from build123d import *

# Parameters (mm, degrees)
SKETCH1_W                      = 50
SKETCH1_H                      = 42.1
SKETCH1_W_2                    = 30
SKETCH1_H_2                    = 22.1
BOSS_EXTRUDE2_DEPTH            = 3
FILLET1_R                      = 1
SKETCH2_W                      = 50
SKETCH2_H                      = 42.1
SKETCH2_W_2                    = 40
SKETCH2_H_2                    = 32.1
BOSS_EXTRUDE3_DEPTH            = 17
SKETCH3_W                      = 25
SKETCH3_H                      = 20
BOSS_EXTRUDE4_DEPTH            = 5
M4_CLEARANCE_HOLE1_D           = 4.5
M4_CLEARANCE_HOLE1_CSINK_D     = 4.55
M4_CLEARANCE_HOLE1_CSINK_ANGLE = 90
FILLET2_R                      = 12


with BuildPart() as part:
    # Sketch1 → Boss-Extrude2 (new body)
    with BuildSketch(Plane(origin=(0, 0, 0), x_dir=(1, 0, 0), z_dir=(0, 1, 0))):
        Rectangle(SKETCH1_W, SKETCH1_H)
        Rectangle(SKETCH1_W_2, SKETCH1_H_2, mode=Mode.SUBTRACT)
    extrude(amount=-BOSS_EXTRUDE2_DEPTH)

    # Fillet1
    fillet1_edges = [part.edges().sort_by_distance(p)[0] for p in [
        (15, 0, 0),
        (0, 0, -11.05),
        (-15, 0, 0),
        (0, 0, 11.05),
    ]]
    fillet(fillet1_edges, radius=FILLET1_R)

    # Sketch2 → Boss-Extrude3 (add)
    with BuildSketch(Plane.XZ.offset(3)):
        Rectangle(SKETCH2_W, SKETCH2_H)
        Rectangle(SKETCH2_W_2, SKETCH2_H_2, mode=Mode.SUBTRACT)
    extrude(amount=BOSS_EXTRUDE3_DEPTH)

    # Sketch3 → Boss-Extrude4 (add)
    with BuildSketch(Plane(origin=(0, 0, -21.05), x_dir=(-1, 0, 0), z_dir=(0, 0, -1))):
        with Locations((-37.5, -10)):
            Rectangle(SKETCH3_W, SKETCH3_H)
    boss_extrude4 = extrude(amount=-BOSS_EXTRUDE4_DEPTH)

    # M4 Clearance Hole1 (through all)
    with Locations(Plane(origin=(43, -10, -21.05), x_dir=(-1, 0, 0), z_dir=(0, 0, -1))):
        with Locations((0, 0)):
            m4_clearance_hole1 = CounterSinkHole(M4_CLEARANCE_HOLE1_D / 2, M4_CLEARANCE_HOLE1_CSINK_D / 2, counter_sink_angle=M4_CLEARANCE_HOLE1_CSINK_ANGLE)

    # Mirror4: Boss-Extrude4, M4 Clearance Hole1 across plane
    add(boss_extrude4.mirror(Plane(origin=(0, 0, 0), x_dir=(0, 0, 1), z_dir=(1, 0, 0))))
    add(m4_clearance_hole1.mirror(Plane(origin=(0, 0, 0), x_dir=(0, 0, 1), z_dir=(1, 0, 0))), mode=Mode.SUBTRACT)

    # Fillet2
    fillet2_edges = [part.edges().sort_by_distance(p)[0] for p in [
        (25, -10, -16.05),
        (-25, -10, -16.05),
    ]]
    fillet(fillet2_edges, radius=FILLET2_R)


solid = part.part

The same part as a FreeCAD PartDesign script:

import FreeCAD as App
import Part
import Sketcher
from FreeCAD import Vector


def edges_at(feature, points):
    """Names of the edges that pass closest to the given points."""
    edges = feature.Shape.Edges
    near = lambda p: min(range(len(edges)), key=lambda i: edges[i].distToShape(Part.Vertex(*p))[0])
    return sorted({f"Edge{near(p) + 1}" for p in points})

doc = App.newDocument("Part")
body = doc.addObject("PartDesign::Body", "Body")

# Sketch on XZ plane
sketch1 = doc.addObject("Sketcher::SketchObject", "Sketch")
body.addObject(sketch1)
sketch1.AttachmentSupport = (doc.XZ_Plane, [""])
sketch1.MapMode = "FlatFace"
sketch1.addGeometry(Part.LineSegment(Vector(-25, -21.05, 0), Vector(-25, 21.05, 0)), False)
sketch1.addGeometry(Part.LineSegment(Vector(-25, 21.05, 0), Vector(25, 21.05, 0)), False)
sketch1.addGeometry(Part.LineSegment(Vector(25, 21.05, 0), Vector(25, -21.05, 0)), False)
sketch1.addGeometry(Part.LineSegment(Vector(25, -21.05, 0), Vector(-25, -21.05, 0)), False)
sketch1.addGeometry(Part.LineSegment(Vector(15, 11.05, 0), Vector(-15, 11.05, 0)), False)
sketch1.addGeometry(Part.LineSegment(Vector(-15, 11.05, 0), Vector(-15, -11.05, 0)), False)
sketch1.addGeometry(Part.LineSegment(Vector(-15, -11.05, 0), Vector(15, -11.05, 0)), False)
sketch1.addGeometry(Part.LineSegment(Vector(15, -11.05, 0), Vector(15, 11.05, 0)), False)
sketch1.addConstraint(Sketcher.Constraint("Coincident", 0, 2, 1, 1))
sketch1.addConstraint(Sketcher.Constraint("Coincident", 1, 2, 2, 1))
sketch1.addConstraint(Sketcher.Constraint("Coincident", 2, 2, 3, 1))
sketch1.addConstraint(Sketcher.Constraint("Coincident", 3, 2, 0, 1))
sketch1.addConstraint(Sketcher.Constraint("Coincident", 4, 2, 5, 1))
sketch1.addConstraint(Sketcher.Constraint("Coincident", 5, 2, 6, 1))
sketch1.addConstraint(Sketcher.Constraint("Coincident", 6, 2, 7, 1))
sketch1.addConstraint(Sketcher.Constraint("Coincident", 7, 2, 4, 1))
sketch1.addConstraint(Sketcher.Constraint("Vertical", 0))
sketch1.addConstraint(Sketcher.Constraint("Horizontal", 1))
sketch1.addConstraint(Sketcher.Constraint("Vertical", 2))
sketch1.addConstraint(Sketcher.Constraint("Horizontal", 3))
sketch1.addConstraint(Sketcher.Constraint("Horizontal", 4))
sketch1.addConstraint(Sketcher.Constraint("Vertical", 5))
sketch1.addConstraint(Sketcher.Constraint("Horizontal", 6))
sketch1.addConstraint(Sketcher.Constraint("Vertical", 7))
sketch1.addConstraint(Sketcher.Constraint("Symmetric", 0, 2, 2, 2, -1, 1))
sketch1.addConstraint(Sketcher.Constraint("Symmetric", 4, 2, 6, 2, -1, 1))
sketch1.addConstraint(Sketcher.Constraint("DistanceX", 1, 1, 1, 2, 50.0))
sketch1.addConstraint(Sketcher.Constraint("DistanceX", 4, 2, 4, 1, 30.0))
sketch1.addConstraint(Sketcher.Constraint("DistanceY", 0, 1, 0, 2, 42.1))
sketch1.addConstraint(Sketcher.Constraint("DistanceY", 5, 2, 5, 1, 22.1))
pad1 = doc.addObject("PartDesign::Pad", "Pad")
body.addObject(pad1)
pad1.Profile = sketch1
pad1.Length = 3
doc.recompute()

fillet = doc.addObject("PartDesign::Fillet", "Fillet")
body.addObject(fillet)
fillet.Base = (pad1, edges_at(pad1, [
    (15, 0, 0),
    (0, 0, -11.05),
    (-15, 0, 0),
    (0, 0, 11.05),
]))
fillet.Radius = 1

# Sketch on XZ plane
sketch2 = doc.addObject("Sketcher::SketchObject", "Sketch001")
body.addObject(sketch2)
sketch2.AttachmentSupport = (doc.XZ_Plane, [""])
sketch2.MapMode = "FlatFace"
sketch2.AttachmentOffset = App.Placement(Vector(0, 0, 3), App.Rotation())
sketch2.addGeometry(Part.LineSegment(Vector(-25, 21.05, 0), Vector(-25, -21.05, 0)), False)
sketch2.addGeometry(Part.LineSegment(Vector(-25, -21.05, 0), Vector(25, -21.05, 0)), False)
sketch2.addGeometry(Part.LineSegment(Vector(25, -21.05, 0), Vector(25, 21.05, 0)), False)
sketch2.addGeometry(Part.LineSegment(Vector(25, 21.05, 0), Vector(-25, 21.05, 0)), False)
sketch2.addGeometry(Part.LineSegment(Vector(20, -16.05, 0), Vector(-20, -16.05, 0)), False)
sketch2.addGeometry(Part.LineSegment(Vector(-20, -16.05, 0), Vector(-20, 16.05, 0)), False)
sketch2.addGeometry(Part.LineSegment(Vector(-20, 16.05, 0), Vector(20, 16.05, 0)), False)
sketch2.addGeometry(Part.LineSegment(Vector(20, 16.05, 0), Vector(20, -16.05, 0)), False)
sketch2.addConstraint(Sketcher.Constraint("Coincident", 0, 2, 1, 1))
sketch2.addConstraint(Sketcher.Constraint("Coincident", 1, 2, 2, 1))
sketch2.addConstraint(Sketcher.Constraint("Coincident", 2, 2, 3, 1))
sketch2.addConstraint(Sketcher.Constraint("Coincident", 3, 2, 0, 1))
sketch2.addConstraint(Sketcher.Constraint("Coincident", 4, 2, 5, 1))
sketch2.addConstraint(Sketcher.Constraint("Coincident", 5, 2, 6, 1))
sketch2.addConstraint(Sketcher.Constraint("Coincident", 6, 2, 7, 1))
sketch2.addConstraint(Sketcher.Constraint("Coincident", 7, 2, 4, 1))
sketch2.addConstraint(Sketcher.Constraint("Vertical", 0))
sketch2.addConstraint(Sketcher.Constraint("Horizontal", 1))
sketch2.addConstraint(Sketcher.Constraint("Vertical", 2))
sketch2.addConstraint(Sketcher.Constraint("Horizontal", 3))
sketch2.addConstraint(Sketcher.Constraint("Horizontal", 4))
sketch2.addConstraint(Sketcher.Constraint("Vertical", 5))
sketch2.addConstraint(Sketcher.Constraint("Horizontal", 6))
sketch2.addConstraint(Sketcher.Constraint("Vertical", 7))
sketch2.addConstraint(Sketcher.Constraint("Symmetric", 0, 2, 2, 2, -1, 1))
sketch2.addConstraint(Sketcher.Constraint("Symmetric", 4, 2, 6, 2, -1, 1))
sketch2.addConstraint(Sketcher.Constraint("DistanceX", 1, 1, 1, 2, 50.0))
sketch2.addConstraint(Sketcher.Constraint("DistanceX", 4, 2, 4, 1, 40.0))
sketch2.addConstraint(Sketcher.Constraint("DistanceY", 0, 2, 0, 1, 42.1))
sketch2.addConstraint(Sketcher.Constraint("DistanceY", 5, 1, 5, 2, 32.1))
pad2 = doc.addObject("PartDesign::Pad", "Pad001")
body.addObject(pad2)
pad2.Profile = sketch2
pad2.Length = 17

# Sketch on XY plane
sketch3 = doc.addObject("Sketcher::SketchObject", "Sketch002")
body.addObject(sketch3)
sketch3.AttachmentSupport = (doc.XY_Plane, [""])
sketch3.MapMode = "FlatFace"
sketch3.AttachmentOffset = App.Placement(Vector(0, 0, -21.05), App.Rotation())
sketch3.addGeometry(Part.LineSegment(Vector(50, 0, 0), Vector(50, -20, 0)), False)
sketch3.addGeometry(Part.LineSegment(Vector(50, -20, 0), Vector(25, -20, 0)), False)
sketch3.addGeometry(Part.LineSegment(Vector(25, -20, 0), Vector(25, 0, 0)), False)
sketch3.addGeometry(Part.LineSegment(Vector(25, 0, 0), Vector(50, 0, 0)), False)
sketch3.addConstraint(Sketcher.Constraint("Coincident", 0, 2, 1, 1))
sketch3.addConstraint(Sketcher.Constraint("Coincident", 1, 2, 2, 1))
sketch3.addConstraint(Sketcher.Constraint("Coincident", 2, 2, 3, 1))
sketch3.addConstraint(Sketcher.Constraint("Coincident", 3, 2, 0, 1))
sketch3.addConstraint(Sketcher.Constraint("Vertical", 0))
sketch3.addConstraint(Sketcher.Constraint("Horizontal", 1))
sketch3.addConstraint(Sketcher.Constraint("Vertical", 2))
sketch3.addConstraint(Sketcher.Constraint("Horizontal", 3))
sketch3.addConstraint(Sketcher.Constraint("PointOnObject", 2, 2, -1))
sketch3.addConstraint(Sketcher.Constraint("DistanceX", 1, 2, 1, 1, 25.0))
sketch3.addConstraint(Sketcher.Constraint("DistanceY", 0, 2, 0, 1, 20.0))
sketch3.addConstraint(Sketcher.Constraint("DistanceX", -1, 1, 0, 2, 50.0))
pad3 = doc.addObject("PartDesign::Pad", "Pad002")
body.addObject(pad3)
pad3.Profile = sketch3
pad3.Length = 5

# Sketch on XY plane
sketch4 = doc.addObject("Sketcher::SketchObject", "Sketch003")
body.addObject(sketch4)
sketch4.AttachmentSupport = (doc.XY_Plane, [""])
sketch4.MapMode = "FlatFace"
sketch4.AttachmentOffset = App.Placement(Vector(0, 0, -21.05), App.Rotation())
sketch4.addGeometry(Part.Circle(Vector(43, -10, 0), Vector(0, 0, 1), 2.25), False)
sketch4.addConstraint(Sketcher.Constraint("Diameter", 0, 4.5))
sketch4.addConstraint(Sketcher.Constraint("DistanceX", -1, 1, 0, 3, 43.0))
sketch4.addConstraint(Sketcher.Constraint("DistanceY", 0, 3, -1, 1, 10.0))
doc.recompute()
hole = doc.addObject("PartDesign::Hole", "Hole")
body.addObject(hole)
hole.Profile = sketch4
hole.ThreadType = "None"
hole.Diameter = 4.5
hole.DepthType = "ThroughAll"
hole.HoleCutType = "Countersink"
hole.HoleCutDiameter = 4.55
hole.HoleCutCountersinkAngle = 90
hole.Reversed = True
doc.recompute()

mirrored = doc.addObject("PartDesign::Mirrored", "Mirrored")
body.addObject(mirrored)
mirrored.Originals = [pad3, hole]
mirrored.MirrorPlane = (doc.YZ_Plane, [""])
body.Tip = mirrored
doc.recompute()

fillet2 = doc.addObject("PartDesign::Fillet", "Fillet001")
body.addObject(fillet2)
fillet2.Base = (mirrored, edges_at(mirrored, [(25, -10, -16.05), (-25, -10, -16.05)]))
fillet2.Radius = 12

doc.recompute()
